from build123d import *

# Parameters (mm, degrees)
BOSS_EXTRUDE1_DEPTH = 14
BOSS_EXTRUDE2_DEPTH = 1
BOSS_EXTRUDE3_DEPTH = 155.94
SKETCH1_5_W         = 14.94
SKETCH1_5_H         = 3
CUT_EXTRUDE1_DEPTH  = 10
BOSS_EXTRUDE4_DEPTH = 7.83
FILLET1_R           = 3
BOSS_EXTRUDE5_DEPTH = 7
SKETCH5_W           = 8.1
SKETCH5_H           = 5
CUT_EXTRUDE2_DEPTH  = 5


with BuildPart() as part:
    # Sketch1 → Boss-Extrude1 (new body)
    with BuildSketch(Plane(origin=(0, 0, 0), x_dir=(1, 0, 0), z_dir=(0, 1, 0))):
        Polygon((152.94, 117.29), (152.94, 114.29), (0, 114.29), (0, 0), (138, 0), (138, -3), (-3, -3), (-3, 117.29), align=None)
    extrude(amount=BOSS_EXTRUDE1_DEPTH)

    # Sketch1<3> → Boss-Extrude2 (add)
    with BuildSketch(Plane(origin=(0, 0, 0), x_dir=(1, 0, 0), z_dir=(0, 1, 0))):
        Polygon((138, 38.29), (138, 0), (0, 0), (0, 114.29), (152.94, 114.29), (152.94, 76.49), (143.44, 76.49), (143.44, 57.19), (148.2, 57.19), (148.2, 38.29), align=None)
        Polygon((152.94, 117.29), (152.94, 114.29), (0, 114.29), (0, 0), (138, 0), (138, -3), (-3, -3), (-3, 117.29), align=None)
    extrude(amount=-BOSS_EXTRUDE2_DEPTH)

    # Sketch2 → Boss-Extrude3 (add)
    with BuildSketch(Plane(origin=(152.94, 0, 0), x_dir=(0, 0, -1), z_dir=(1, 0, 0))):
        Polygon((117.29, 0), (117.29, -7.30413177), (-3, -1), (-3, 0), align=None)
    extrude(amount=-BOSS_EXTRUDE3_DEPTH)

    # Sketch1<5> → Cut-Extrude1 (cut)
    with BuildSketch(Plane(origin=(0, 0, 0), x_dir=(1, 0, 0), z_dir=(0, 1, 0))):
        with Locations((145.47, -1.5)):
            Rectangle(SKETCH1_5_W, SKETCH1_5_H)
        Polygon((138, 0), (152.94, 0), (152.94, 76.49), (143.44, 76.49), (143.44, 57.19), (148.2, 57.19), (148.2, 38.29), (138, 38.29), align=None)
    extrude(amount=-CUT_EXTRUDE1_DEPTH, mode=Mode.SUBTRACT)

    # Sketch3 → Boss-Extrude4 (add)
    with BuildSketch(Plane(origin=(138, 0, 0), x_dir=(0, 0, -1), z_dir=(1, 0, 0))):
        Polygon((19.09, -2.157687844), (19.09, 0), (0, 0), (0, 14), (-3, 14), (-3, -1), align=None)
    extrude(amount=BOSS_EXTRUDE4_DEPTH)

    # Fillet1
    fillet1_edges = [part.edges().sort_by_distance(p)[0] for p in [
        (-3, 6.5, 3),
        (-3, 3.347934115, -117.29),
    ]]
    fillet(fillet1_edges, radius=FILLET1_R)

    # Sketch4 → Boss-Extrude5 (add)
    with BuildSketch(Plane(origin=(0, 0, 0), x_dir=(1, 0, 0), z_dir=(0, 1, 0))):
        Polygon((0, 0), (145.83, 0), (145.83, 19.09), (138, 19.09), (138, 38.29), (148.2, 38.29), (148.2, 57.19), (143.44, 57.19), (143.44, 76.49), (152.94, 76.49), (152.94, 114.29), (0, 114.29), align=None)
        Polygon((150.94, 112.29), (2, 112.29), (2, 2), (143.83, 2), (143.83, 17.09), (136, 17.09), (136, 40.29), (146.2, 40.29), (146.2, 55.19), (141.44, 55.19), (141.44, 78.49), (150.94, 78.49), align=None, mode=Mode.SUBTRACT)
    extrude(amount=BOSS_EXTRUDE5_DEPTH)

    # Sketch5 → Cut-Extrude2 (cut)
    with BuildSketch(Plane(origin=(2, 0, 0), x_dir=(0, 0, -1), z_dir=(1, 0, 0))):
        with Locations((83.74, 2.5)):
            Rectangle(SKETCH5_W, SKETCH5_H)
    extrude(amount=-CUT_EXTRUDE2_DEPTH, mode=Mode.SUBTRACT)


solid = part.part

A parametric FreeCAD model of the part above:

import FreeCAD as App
import Part
import Sketcher

V = App.Vector
Q = App.Units.Quantity


def edges_at(feature, points):
    """Names of the edges that pass closest to the given points."""
    edges = feature.Shape.Edges
    near = lambda p: min(range(len(edges)), key=lambda i: edges[i].distToShape(Part.Vertex(*p))[0])
    return sorted({f"Edge{near(p) + 1}" for p in points})

doc = App.newDocument("Part")
params = doc.addObject("Spreadsheet::Sheet", "Params")
for row, (alias, value) in enumerate([
    ("sketch1_width", "141 mm"),
    ("sketch1_width2", "138 mm"),
    ("sketch1_height", "3 mm"),
    ("sketch1_width3", "155.94 mm"),
    ("sketch1_height2", "120.29 mm"),
    ("pad1_length", "14 mm"),
    ("sketch2_width", "141 mm"),
    ("sketch2_width2", "10.2 mm"),
    ("sketch2_width3", "9.5 mm"),
    ("sketch2_height", "18.9 mm"),
    ("sketch2_height2", "19.3 mm"),
    ("pad2_length", "1 mm"),
    ("sketch3_width", "1 mm"),
    ("sketch3_height", "120.29 mm"),
    ("pad3_length", "155.94 mm"),
    ("sketch4_width", "9.5 mm"),
    ("sketch4_width2", "10.2 mm"),
    ("sketch4_height", "19.3 mm"),
    ("sketch4_height2", "18.9 mm"),
    ("sketch4_width3", "14.94 mm"),
    ("pocket1_length", "10 mm"),
    ("sketch5_width", "14 mm"),
    ("sketch5_width2", "15 mm"),
    ("sketch5_height", "3 mm"),
    ("sketch5_height2", "19.09 mm"),
    ("pad4_length", "7.83 mm"),
    ("fillet_radius", "3 mm"),
    ("sketch6_width", "10.2 mm"),
    ("sketch6_width2", "9.5 mm"),
    ("sketch6_height", "19.2 mm"),
    ("sketch6_height2", "18.9 mm"),
    ("sketch6_height3", "19.3 mm"),
    ("pad5_length", "7 mm"),
    ("sketch7_width", "5 mm"),
    ("sketch7_height", "8.1 mm"),
    ("pocket2_length", "5 mm"),
], start=1):
    params.set(f"A{row}", alias)
    params.set(f"B{row}", "=" + value)
    params.setAlias(f"B{row}", alias)

body = doc.addObject("PartDesign::Body", "Body")

# Sketch on XZ plane
sketch1 = body.newObject("Sketcher::SketchObject", "Sketch")
sketch1.AttachmentSupport = (doc.getObject("XZ_Plane"), [""])
sketch1.MapMode = "FlatFace"
sketch1.addGeometry([
    Part.LineSegment(V(152.9, -114.3, 0), V(152.9, -117.3, 0)),  # 0
    Part.LineSegment(V(152.9, -117.3, 0), V(-3, -117.3, 0)),  # 1
    Part.LineSegment(V(-3, -117.3, 0), V(-3, 3, 0)),  # 2
    Part.LineSegment(V(-3, 3, 0), V(138, 3, 0)),  # 3
    Part.LineSegment(V(138, 3, 0), V(138, 0, 0)),  # 4
    Part.LineSegment(V(138, 0, 0), V(0, 0, 0)),  # 5
    Part.LineSegment(V(0, 0, 0), V(0, -114.3, 0)),  # 6
    Part.LineSegment(V(0, -114.3, 0), V(152.9, -114.3, 0)),  # 7
], False)
sketch1.addConstraint([
    Sketcher.Constraint("Coincident", 0, 2, 1, 1),
    Sketcher.Constraint("Coincident", 1, 2, 2, 1),
    Sketcher.Constraint("Coincident", 2, 2, 3, 1),
    Sketcher.Constraint("Coincident", 3, 2, 4, 1),
    Sketcher.Constraint("Coincident", 4, 2, 5, 1),
    Sketcher.Constraint("Coincident", 5, 2, 6, 1),
    Sketcher.Constraint("Coincident", 6, 2, 7, 1),
    Sketcher.Constraint("Coincident", 7, 2, 0, 1),
    Sketcher.Constraint("Vertical", 0),
    Sketcher.Constraint("Horizontal", 1),
    Sketcher.Constraint("Vertical", 2),
    Sketcher.Constraint("Horizontal", 3),
    Sketcher.Constraint("Vertical", 4),
    Sketcher.Constraint("Horizontal", 5),
    Sketcher.Constraint("Vertical", 6),
    Sketcher.Constraint("Horizontal", 7),
    Sketcher.Constraint("Coincident", 5, 2, -1, 1),
    Sketcher.Constraint("Equal", 0, 4),
    Sketcher.Constraint("DistanceX", 3, 1, 3, 2, 141.0),
    Sketcher.Constraint("DistanceX", 5, 2, 5, 1, 138.0),
    Sketcher.Constraint("DistanceY", 0, 2, 0, 1, 3.0),
    Sketcher.Constraint("DistanceX", 1, 2, 1, 1, 155.94),
    Sketcher.Constraint("DistanceY", 2, 1, 2, 2, 120.29),
])
sketch1.setExpression("Constraints[18]", "Params.sketch1_width")
sketch1.setExpression("Constraints[19]", "Params.sketch1_width2")
sketch1.setExpression("Constraints[20]", "Params.sketch1_height")
sketch1.setExpression("Constraints[21]", "Params.sketch1_width3")
sketch1.setExpression("Constraints[22]", "Params.sketch1_height2")
pad1 = body.newObject("PartDesign::Pad", "Pad")
pad1.Profile = sketch1
pad1.setExpression("Length", "Params.pad1_length")
pad1.Reversed = True

# Sketch on XZ plane
sketch2 = body.newObject("Sketcher::SketchObject", "Sketch001")
sketch2.AttachmentSupport = (doc.getObject("XZ_Plane"), [""])
sketch2.MapMode = "FlatFace"
sketch2.addGeometry([
    Part.LineSegment(V(138, 3, 0), V(138, -38.3, 0)),  # 0
    Part.LineSegment(V(138, -38.3, 0), V(148.2, -38.3, 0)),  # 1
    Part.LineSegment(V(148.2, -38.3, 0), V(148.2, -57.2, 0)),  # 2
    Part.LineSegment(V(148.2, -57.2, 0), V(143.4, -57.2, 0)),  # 3
    Part.LineSegment(V(143.4, -57.2, 0), V(143.4, -76.5, 0)),  # 4
    Part.LineSegment(V(143.4, -76.5, 0), V(152.9, -76.5, 0)),  # 5
    Part.LineSegment(V(152.9, -76.5, 0), V(152.9, -117.3, 0)),  # 6
    Part.LineSegment(V(152.9, -117.3, 0), V(-3, -117.3, 0)),  # 7
    Part.LineSegment(V(-3, -117.3, 0), V(-3, 3, 0)),  # 8
    Part.LineSegment(V(-3, 3, 0), V(138, 3, 0)),  # 9
], False)
sketch2.addConstraint([
    Sketcher.Constraint("Coincident", 0, 2, 1, 1),
    Sketcher.Constraint("Coincident", 1, 2, 2, 1),
    Sketcher.Constraint("Coincident", 2, 2, 3, 1),
    Sketcher.Constraint("Coincident", 3, 2, 4, 1),
    Sketcher.Constraint("Coincident", 4, 2, 5, 1),
    Sketcher.Constraint("Coincident", 5, 2, 6, 1),
    Sketcher.Constraint("Coincident", 6, 2, 7, 1),
    Sketcher.Constraint("Coincident", 7, 2, 8, 1),
    Sketcher.Constraint("Coincident", 8, 2, 9, 1),
    Sketcher.Constraint("Coincident", 9, 2, 0, 1),
    Sketcher.Constraint("Vertical", 0),
    Sketcher.Constraint("Horizontal", 1),
    Sketcher.Constraint("Vertical", 2),
    Sketcher.Constraint("Horizontal", 3),
    Sketcher.Constraint("Vertical", 4),
    Sketcher.Constraint("Horizontal", 5),
    Sketcher.Constraint("Vertical", 6),
    Sketcher.Constraint("Horizontal", 7),
    Sketcher.Constraint("Vertical", 8),
    Sketcher.Constraint("Horizontal", 9),
    Sketcher.Constraint("DistanceX", 9, 1, 9, 2, 141.0),
    Sketcher.Constraint("DistanceX", 1, 1, 1, 2, 10.2),
    Sketcher.Constraint("DistanceX", 5, 1, 5, 2, 9.5),
    Sketcher.Constraint("DistanceY", 2, 2, 2, 1, 18.9),
    Sketcher.Constraint("DistanceY", 4, 2, 4, 1, 19.3),
    Sketcher.Constraint("DistanceY", 6, 2, 6, 1, 40.8),
    Sketcher.Constraint("DistanceX", -1, 1, 0, 2, 138.0),
    Sketcher.Constraint("DistanceY", -1, 1, 8, 2, 3.0),
    Sketcher.Constraint("DistanceX", 3, 2, 3, 1, 4.76),
    Sketcher.Constraint("DistanceY", 0, 2, 0, 1, 41.29),
])
sketch2.setExpression("Constraints[20]", "Params.sketch2_width")
sketch2.setExpression("Constraints[21]", "Params.sketch2_width2")
sketch2.setExpression("Constraints[22]", "Params.sketch2_width3")
sketch2.setExpression("Constraints[23]", "Params.sketch2_height")
sketch2.setExpression("Constraints[24]", "Params.sketch2_height2")
pad2 = body.newObject("PartDesign::Pad", "Pad001")
pad2.Profile = sketch2
pad2.setExpression("Length", "Params.pad2_length")

# Sketch on YZ plane
sketch3 = body.newObject("Sketcher::SketchObject", "Sketch002")
sketch3.AttachmentSupport = (doc.getObject("YZ_Plane"), [""])
sketch3.MapMode = "FlatFace"
sketch3.AttachmentOffset = App.Placement(V(0, 0, 152.94), App.Rotation())
sketch3.addGeometry([
    Part.LineSegment(V(-7.3, -117.3, 0), V(0, -117.3, 0)),
    Part.LineSegment(V(0, -117.3, 0), V(0, 3, 0)),
    Part.LineSegment(V(0, 3, 0), V(-1, 3, 0)),
    Part.LineSegment(V(-1, 3, 0), V(-7.3, -117.3, 0)),
], False)
sketch3.addConstraint([
    Sketcher.Constraint("Coincident", 0, 2, 1, 1),
    Sketcher.Constraint("Coincident", 1, 2, 2, 1),
    Sketcher.Constraint("Coincident", 2, 2, 3, 1),
    Sketcher.Constraint("Coincident", 3, 2, 0, 1),
    Sketcher.Constraint("Horizontal", 0),
    Sketcher.Constraint("Vertical", 1),
    Sketcher.Constraint("Horizontal", 2),
    Sketcher.Constraint("PointOnObject", 0, 2, -2),
    Sketcher.Constraint("DistanceX", 2, 2, 2, 1, 1.0),
    Sketcher.Constraint("Angle", 3, Q("-93 deg")),
    Sketcher.Constraint("DistanceY", -1, 1, 1, 2, 3.0),
    Sketcher.Constraint("DistanceY", 1, 1, 1, 2, 120.29),
])
sketch3.setExpression("Constraints[8]", "Params.sketch3_width")
sketch3.setExpression("Constraints[11]", "Params.sketch3_height")
pad3 = body.newObject("PartDesign::Pad", "Pad002")
pad3.Profile = sketch3
pad3.setExpression("Length", "Params.pad3_length")
pad3.Reversed = True

# Sketch on XZ plane
sketch4 = body.newObject("Sketcher::SketchObject", "Sketch003")
sketch4.AttachmentSupport = (doc.getObject("XZ_Plane"), [""])
sketch4.MapMode = "FlatFace"
sketch4.addGeometry([
    Part.LineSegment(V(138, 3, 0), V(152.9, 3, 0)),  # 0
    Part.LineSegment(V(152.9, 3, 0), V(152.9, -76.5, 0)),  # 1
    Part.LineSegment(V(152.9, -76.5, 0), V(143.4, -76.5, 0)),  # 2
    Part.LineSegment(V(143.4, -76.5, 0), V(143.4, -57.2, 0)),  # 3
    Part.LineSegment(V(143.4, -57.2, 0), V(148.2, -57.2, 0)),  # 4
    Part.LineSegment(V(148.2, -57.2, 0), V(148.2, -38.3, 0)),  # 5
    Part.LineSegment(V(148.2, -38.3, 0), V(138, -38.3, 0)),  # 6
    Part.LineSegment(V(138, -38.3, 0), V(138, 3, 0)),  # 7
], False)
sketch4.addConstraint([
    Sketcher.Constraint("Coincident", 0, 2, 1, 1),
    Sketcher.Constraint("Coincident", 1, 2, 2, 1),
    Sketcher.Constraint("Coincident", 2, 2, 3, 1),
    Sketcher.Constraint("Coincident", 3, 2, 4, 1),
    Sketcher.Constraint("Coincident", 4, 2, 5, 1),
    Sketcher.Constraint("Coincident", 5, 2, 6, 1),
    Sketcher.Constraint("Coincident", 6, 2, 7, 1),
    Sketcher.Constraint("Coincident", 7, 2, 0, 1),
    Sketcher.Constraint("Horizontal", 0),
    Sketcher.Constraint("Vertical", 1),
    Sketcher.Constraint("Horizontal", 2),
    Sketcher.Constraint("Vertical", 3),
    Sketcher.Constraint("Horizontal", 4),
    Sketcher.Constraint("Vertical", 5),
    Sketcher.Constraint("Horizontal", 6),
    Sketcher.Constraint("Vertical", 7),
    Sketcher.Constraint("DistanceX", 2, 2, 2, 1, 9.5),
    Sketcher.Constraint("DistanceX", 6, 2, 6, 1, 10.2),
    Sketcher.Constraint("DistanceY", 3, 1, 3, 2, 19.3),
    Sketcher.Constraint("DistanceY", 5, 1, 5, 2, 18.9),
    Sketcher.Constraint("DistanceY", -1, 1, 0, 2, 3.0),
    Sketcher.Constraint("DistanceX", -1, 1, 6, 2, 138.0),
    Sketcher.Constraint("DistanceX", 0, 1, 0, 2, 14.94),
    Sketcher.Constraint("DistanceY", 1, 2, 1, 1, 79.49),
])
sketch4.setExpression("Constraints[16]", "Params.sketch4_width")
sketch4.setExpression("Constraints[17]", "Params.sketch4_width2")
sketch4.setExpression("Constraints[18]", "Params.sketch4_height")
sketch4.setExpression("Constraints[19]", "Params.sketch4_height2")
sketch4.setExpression("Constraints[22]", "Params.sketch4_width3")
pocket1 = body.newObject("PartDesign::Pocket", "Pocket")
pocket1.Profile = sketch4
pocket1.setExpression("Length", "Params.pocket1_length")
pocket1.Reversed = True

# Sketch on YZ plane
sketch5 = body.newObject("Sketcher::SketchObject", "Sketch004")
sketch5.AttachmentSupport = (doc.getObject("YZ_Plane"), [""])
sketch5.MapMode = "FlatFace"
sketch5.AttachmentOffset = App.Placement(V(0, 0, 138), App.Rotation())
sketch5.addGeometry([
    Part.LineSegment(V(-2.2, -19.1, 0), V(0, -19.1, 0)),  # 0
    Part.LineSegment(V(0, -19.1, 0), V(0, 0, 0)),  # 1
    Part.LineSegment(V(0, 0, 0), V(14, 0, 0)),  # 2
    Part.LineSegment(V(14, 0, 0), V(14, 3, 0)),  # 3
    Part.LineSegment(V(14, 3, 0), V(-1, 3, 0)),  # 4
    Part.LineSegment(V(-1, 3, 0), V(-2.2, -19.1, 0)),  # 5
], False)
sketch5.addConstraint([
    Sketcher.Constraint("Coincident", 0, 2, 1, 1),
    Sketcher.Constraint("Coincident", 1, 2, 2, 1),
    Sketcher.Constraint("Coincident", 2, 2, 3, 1),
    Sketcher.Constraint("Coincident", 3, 2, 4, 1),
    Sketcher.Constraint("Coincident", 4, 2, 5, 1),
    Sketcher.Constraint("Coincident", 5, 2, 0, 1),
    Sketcher.Constraint("Horizontal", 0),
    Sketcher.Constraint("Vertical", 1),
    Sketcher.Constraint("Horizontal", 2),
    Sketcher.Constraint("Vertical", 3),
    Sketcher.Constraint("Horizontal", 4),
    Sketcher.Constraint("Coincident", 1, 2, -1, 1),
    Sketcher.Constraint("DistanceX", 2, 1, 2, 2, 14.0),
    Sketcher.Constraint("DistanceX", 4, 2, 4, 1, 15.0),
    Sketcher.Constraint("DistanceY", 3, 1, 3, 2, 3.0),
    Sketcher.Constraint("Angle", 5, Q("-93 deg")),
    Sketcher.Constraint("DistanceY", 1, 1, 1, 2, 19.09),
])
sketch5.setExpression("Constraints[12]", "Params.sketch5_width")
sketch5.setExpression("Constraints[13]", "Params.sketch5_width2")
sketch5.setExpression("Constraints[14]", "Params.sketch5_height")
sketch5.setExpression("Constraints[16]", "Params.sketch5_height2")
pad4 = body.newObject("PartDesign::Pad", "Pad003")
pad4.Profile = sketch5
pad4.setExpression("Length", "Params.pad4_length")
doc.recompute()

fillet = body.newObject("PartDesign::Fillet", "Fillet")
fillet.Base = (pad4, edges_at(pad4, [(-3, 6.5, 3), (-3, 3.348, -117.29)]))
fillet.setExpression("Radius", "Params.fillet_radius")

# Sketch on XZ plane
sketch6 = body.newObject("Sketcher::SketchObject", "Sketch005")
sketch6.AttachmentSupport = (doc.getObject("XZ_Plane"), [""])
sketch6.MapMode = "FlatFace"
sketch6.addGeometry([
    Part.LineSegment(V(0, 0, 0), V(145.8, 0, 0)),  # 0
    Part.LineSegment(V(145.8, 0, 0), V(145.8, -19.1, 0)),  # 1
    Part.LineSegment(V(145.8, -19.1, 0), V(138, -19.1, 0)),  # 2
    Part.LineSegment(V(138, -19.1, 0), V(138, -38.3, 0)),  # 3
    Part.LineSegment(V(138, -38.3, 0), V(148.2, -38.3, 0)),  # 4
    Part.LineSegment(V(148.2, -38.3, 0), V(148.2, -57.2, 0)),  # 5
    Part.LineSegment(V(148.2, -57.2, 0), V(143.4, -57.2, 0)),  # 6
    Part.LineSegment(V(143.4, -57.2, 0), V(143.4, -76.5, 0)),  # 7
    Part.LineSegment(V(143.4, -76.5, 0), V(152.9, -76.5, 0)),  # 8
    Part.LineSegment(V(152.9, -76.5, 0), V(152.9, -114.3, 0)),  # 9
    Part.LineSegment(V(152.9, -114.3, 0), V(0, -114.3, 0)),  # 10
    Part.LineSegment(V(0, -114.3, 0), V(0, 0, 0)),  # 11
    Part.LineSegment(V(2, -112.3, 0), V(150.9, -112.3, 0)),  # 12
    Part.LineSegment(V(150.9, -112.3, 0), V(150.9, -78.5, 0)),  # 13
    Part.LineSegment(V(150.9, -78.5, 0), V(141.4, -78.5, 0)),  # 14
    Part.LineSegment(V(141.4, -78.5, 0), V(141.4, -55.2, 0)),  # 15
    Part.LineSegment(V(141.4, -55.2, 0), V(146.2, -55.2, 0)),  # 16
    Part.LineSegment(V(146.2, -55.2, 0), V(146.2, -40.3, 0)),  # 17
    Part.LineSegment(V(146.2, -40.3, 0), V(136, -40.3, 0)),  # 18
    Part.LineSegment(V(136, -40.3, 0), V(136, -17.1, 0)),  # 19
    Part.LineSegment(V(136, -17.1, 0), V(143.8, -17.1, 0)),  # 20
    Part.LineSegment(V(143.8, -17.1, 0), V(143.8, -2, 0)),  # 21
    Part.LineSegment(V(143.8, -2, 0), V(2, -2, 0)),  # 22
    Part.LineSegment(V(2, -2, 0), V(2, -112.3, 0)),  # 23
], False)
sketch6.addConstraint([
    Sketcher.Constraint("Coincident", 0, 2, 1, 1),
    Sketcher.Constraint("Coincident", 1, 2, 2, 1),
    Sketcher.Constraint("Coincident", 2, 2, 3, 1),
    Sketcher.Constraint("Coincident", 3, 2, 4, 1),
    Sketcher.Constraint("Coincident", 4, 2, 5, 1),
    Sketcher.Constraint("Coincident", 5, 2, 6, 1),
    Sketcher.Constraint("Coincident", 6, 2, 7, 1),
    Sketcher.Constraint("Coincident", 7, 2, 8, 1),
    Sketcher.Constraint("Coincident", 8, 2, 9, 1),
    Sketcher.Constraint("Coincident", 9, 2, 10, 1),
    Sketcher.Constraint("Coincident", 10, 2, 11, 1),
    Sketcher.Constraint("Coincident", 11, 2, 0, 1),
    Sketcher.Constraint("Coincident", 12, 2, 13, 1),
    Sketcher.Constraint("Coincident", 13, 2, 14, 1),
    Sketcher.Constraint("Coincident", 14, 2, 15, 1),
    Sketcher.Constraint("Coincident", 15, 2, 16, 1),
    Sketcher.Constraint("Coincident", 16, 2, 17, 1),
    Sketcher.Constraint("Coincident", 17, 2, 18, 1),
    Sketcher.Constraint("Coincident", 18, 2, 19, 1),
    Sketcher.Constraint("Coincident", 19, 2, 20, 1),
    Sketcher.Constraint("Coincident", 20, 2, 21, 1),
    Sketcher.Constraint("Coincident", 21, 2, 22, 1),
    Sketcher.Constraint("Coincident", 22, 2, 23, 1),
    Sketcher.Constraint("Coincident", 23, 2, 12, 1),
    Sketcher.Constraint("Horizontal", 0),
    Sketcher.Constraint("Vertical", 1),
    Sketcher.Constraint("Horizontal", 2),
    Sketcher.Constraint("Vertical", 3),
    Sketcher.Constraint("Horizontal", 4),
    Sketcher.Constraint("Vertical", 5),
    Sketcher.Constraint("Horizontal", 6),
    Sketcher.Constraint("Vertical", 7),
    Sketcher.Constraint("Horizontal", 8),
    Sketcher.Constraint("Vertical", 9),
    Sketcher.Constraint("Horizontal", 10),
    Sketcher.Constraint("Vertical", 11),
    Sketcher.Constraint("Horizontal", 12),
    Sketcher.Constraint("Vertical", 13),
    Sketcher.Constraint("Horizontal", 14),
    Sketcher.Constraint("Vertical", 15),
    Sketcher.Constraint("Horizontal", 16),
    Sketcher.Constraint("Vertical", 17),
    Sketcher.Constraint("Horizontal", 18),
    Sketcher.Constraint("Vertical", 19),
    Sketcher.Constraint("Horizontal", 20),
    Sketcher.Constraint("Vertical", 21),
    Sketcher.Constraint("Horizontal", 22),
    Sketcher.Constraint("Vertical", 23),
    Sketcher.Constraint("Coincident", 11, 2, -1, 1),
    Sketcher.Constraint("Equal", 8, 14),
    Sketcher.Constraint("Equal", 6, 16),
    Sketcher.Constraint("Equal", 4, 18),
    Sketcher.Constraint("Equal", 2, 20),
    Sketcher.Constraint("DistanceX", 4, 1, 4, 2, 10.2),
    Sketcher.Constraint("DistanceX", 8, 1, 8, 2, 9.5),
    Sketcher.Constraint("DistanceY", 3, 2, 3, 1, 19.2),
    Sketcher.Constraint("DistanceY", 5, 2, 5, 1, 18.9),
    Sketcher.Constraint("DistanceY", 7, 2, 7, 1, 19.3),
    Sketcher.Constraint("DistanceY", 9, 2, 9, 1, 37.8),
    Sketcher.Constraint("DistanceY", 13, 1, 13, 2, 33.8),
    Sketcher.Constraint("DistanceY", 15, 1, 15, 2, 23.3),
    Sketcher.Constraint("DistanceY", 17, 1, 17, 2, 14.9),
    Sketcher.Constraint("DistanceY", 19, 1, 19, 2, 23.2),
    Sketcher.Constraint("DistanceX", -1, 1, 2, 2, 138.0),
    Sketcher.Constraint("DistanceX", -1, 1, 18, 2, 136.0),
    Sketcher.Constraint("DistanceY", 21, 2, -1, 1, 2.0),
    Sketcher.Constraint("DistanceX", -1, 1, 22, 2, 2.0),
    Sketcher.Constraint("DistanceY", 9, 2, 12, 2, 2.0),
    Sketcher.Constraint("DistanceX", 0, 1, 0, 2, 145.83),
    Sketcher.Constraint("DistanceX", 6, 2, 6, 1, 4.76),
    Sketcher.Constraint("DistanceY", 1, 2, 1, 1, 19.09),
])
sketch6.setExpression("Constraints[53]", "Params.sketch6_width")
sketch6.setExpression("Constraints[54]", "Params.sketch6_width2")
sketch6.setExpression("Constraints[55]", "Params.sketch6_height")
sketch6.setExpression("Constraints[56]", "Params.sketch6_height2")
sketch6.setExpression("Constraints[57]", "Params.sketch6_height3")
pad5 = body.newObject("PartDesign::Pad", "Pad004")
pad5.Profile = sketch6
pad5.setExpression("Length", "Params.pad5_length")
pad5.Reversed = True

# Sketch on YZ plane
sketch7 = body.newObject("Sketcher::SketchObject", "Sketch006")
sketch7.AttachmentSupport = (doc.getObject("YZ_Plane"), [""])
sketch7.MapMode = "FlatFace"
sketch7.AttachmentOffset = App.Placement(V(0, 0, 2), App.Rotation())
sketch7.addGeometry([
    Part.LineSegment(V(5, -80, 0), V(0, -80, 0)),
    Part.LineSegment(V(0, -80, 0), V(0, -88, 0)),
    Part.LineSegment(V(0, -88, 0), V(5, -88, 0)),
    Part.LineSegment(V(5, -88, 0), V(5, -80, 0)),
], False)
sketch7.addConstraint([
    Sketcher.Constraint("Coincident", 0, 2, 1, 1),
    Sketcher.Constraint("Coincident", 1, 2, 2, 1),
    Sketcher.Constraint("Coincident", 2, 2, 3, 1),
    Sketcher.Constraint("Coincident", 3, 2, 0, 1),
    Sketcher.Constraint("Horizontal", 0),
    Sketcher.Constraint("Vertical", 1),
    Sketcher.Constraint("Horizontal", 2),
    Sketcher.Constraint("Vertical", 3),
    Sketcher.Constraint("PointOnObject", 0, 2, -2),
    Sketcher.Constraint("DistanceX", 0, 2, 0, 1, 5.0),
    Sketcher.Constraint("DistanceY", 1, 2, 1, 1, 8.1),
    Sketcher.Constraint("DistanceY", 0, 2, -1, 1, 79.69),
])
sketch7.setExpression("Constraints[9]", "Params.sketch7_width")
sketch7.setExpression("Constraints[10]", "Params.sketch7_height")
pocket2 = body.newObject("PartDesign::Pocket", "Pocket001")
pocket2.Profile = sketch7
pocket2.setExpression("Length", "Params.pocket2_length")

doc.recompute()
